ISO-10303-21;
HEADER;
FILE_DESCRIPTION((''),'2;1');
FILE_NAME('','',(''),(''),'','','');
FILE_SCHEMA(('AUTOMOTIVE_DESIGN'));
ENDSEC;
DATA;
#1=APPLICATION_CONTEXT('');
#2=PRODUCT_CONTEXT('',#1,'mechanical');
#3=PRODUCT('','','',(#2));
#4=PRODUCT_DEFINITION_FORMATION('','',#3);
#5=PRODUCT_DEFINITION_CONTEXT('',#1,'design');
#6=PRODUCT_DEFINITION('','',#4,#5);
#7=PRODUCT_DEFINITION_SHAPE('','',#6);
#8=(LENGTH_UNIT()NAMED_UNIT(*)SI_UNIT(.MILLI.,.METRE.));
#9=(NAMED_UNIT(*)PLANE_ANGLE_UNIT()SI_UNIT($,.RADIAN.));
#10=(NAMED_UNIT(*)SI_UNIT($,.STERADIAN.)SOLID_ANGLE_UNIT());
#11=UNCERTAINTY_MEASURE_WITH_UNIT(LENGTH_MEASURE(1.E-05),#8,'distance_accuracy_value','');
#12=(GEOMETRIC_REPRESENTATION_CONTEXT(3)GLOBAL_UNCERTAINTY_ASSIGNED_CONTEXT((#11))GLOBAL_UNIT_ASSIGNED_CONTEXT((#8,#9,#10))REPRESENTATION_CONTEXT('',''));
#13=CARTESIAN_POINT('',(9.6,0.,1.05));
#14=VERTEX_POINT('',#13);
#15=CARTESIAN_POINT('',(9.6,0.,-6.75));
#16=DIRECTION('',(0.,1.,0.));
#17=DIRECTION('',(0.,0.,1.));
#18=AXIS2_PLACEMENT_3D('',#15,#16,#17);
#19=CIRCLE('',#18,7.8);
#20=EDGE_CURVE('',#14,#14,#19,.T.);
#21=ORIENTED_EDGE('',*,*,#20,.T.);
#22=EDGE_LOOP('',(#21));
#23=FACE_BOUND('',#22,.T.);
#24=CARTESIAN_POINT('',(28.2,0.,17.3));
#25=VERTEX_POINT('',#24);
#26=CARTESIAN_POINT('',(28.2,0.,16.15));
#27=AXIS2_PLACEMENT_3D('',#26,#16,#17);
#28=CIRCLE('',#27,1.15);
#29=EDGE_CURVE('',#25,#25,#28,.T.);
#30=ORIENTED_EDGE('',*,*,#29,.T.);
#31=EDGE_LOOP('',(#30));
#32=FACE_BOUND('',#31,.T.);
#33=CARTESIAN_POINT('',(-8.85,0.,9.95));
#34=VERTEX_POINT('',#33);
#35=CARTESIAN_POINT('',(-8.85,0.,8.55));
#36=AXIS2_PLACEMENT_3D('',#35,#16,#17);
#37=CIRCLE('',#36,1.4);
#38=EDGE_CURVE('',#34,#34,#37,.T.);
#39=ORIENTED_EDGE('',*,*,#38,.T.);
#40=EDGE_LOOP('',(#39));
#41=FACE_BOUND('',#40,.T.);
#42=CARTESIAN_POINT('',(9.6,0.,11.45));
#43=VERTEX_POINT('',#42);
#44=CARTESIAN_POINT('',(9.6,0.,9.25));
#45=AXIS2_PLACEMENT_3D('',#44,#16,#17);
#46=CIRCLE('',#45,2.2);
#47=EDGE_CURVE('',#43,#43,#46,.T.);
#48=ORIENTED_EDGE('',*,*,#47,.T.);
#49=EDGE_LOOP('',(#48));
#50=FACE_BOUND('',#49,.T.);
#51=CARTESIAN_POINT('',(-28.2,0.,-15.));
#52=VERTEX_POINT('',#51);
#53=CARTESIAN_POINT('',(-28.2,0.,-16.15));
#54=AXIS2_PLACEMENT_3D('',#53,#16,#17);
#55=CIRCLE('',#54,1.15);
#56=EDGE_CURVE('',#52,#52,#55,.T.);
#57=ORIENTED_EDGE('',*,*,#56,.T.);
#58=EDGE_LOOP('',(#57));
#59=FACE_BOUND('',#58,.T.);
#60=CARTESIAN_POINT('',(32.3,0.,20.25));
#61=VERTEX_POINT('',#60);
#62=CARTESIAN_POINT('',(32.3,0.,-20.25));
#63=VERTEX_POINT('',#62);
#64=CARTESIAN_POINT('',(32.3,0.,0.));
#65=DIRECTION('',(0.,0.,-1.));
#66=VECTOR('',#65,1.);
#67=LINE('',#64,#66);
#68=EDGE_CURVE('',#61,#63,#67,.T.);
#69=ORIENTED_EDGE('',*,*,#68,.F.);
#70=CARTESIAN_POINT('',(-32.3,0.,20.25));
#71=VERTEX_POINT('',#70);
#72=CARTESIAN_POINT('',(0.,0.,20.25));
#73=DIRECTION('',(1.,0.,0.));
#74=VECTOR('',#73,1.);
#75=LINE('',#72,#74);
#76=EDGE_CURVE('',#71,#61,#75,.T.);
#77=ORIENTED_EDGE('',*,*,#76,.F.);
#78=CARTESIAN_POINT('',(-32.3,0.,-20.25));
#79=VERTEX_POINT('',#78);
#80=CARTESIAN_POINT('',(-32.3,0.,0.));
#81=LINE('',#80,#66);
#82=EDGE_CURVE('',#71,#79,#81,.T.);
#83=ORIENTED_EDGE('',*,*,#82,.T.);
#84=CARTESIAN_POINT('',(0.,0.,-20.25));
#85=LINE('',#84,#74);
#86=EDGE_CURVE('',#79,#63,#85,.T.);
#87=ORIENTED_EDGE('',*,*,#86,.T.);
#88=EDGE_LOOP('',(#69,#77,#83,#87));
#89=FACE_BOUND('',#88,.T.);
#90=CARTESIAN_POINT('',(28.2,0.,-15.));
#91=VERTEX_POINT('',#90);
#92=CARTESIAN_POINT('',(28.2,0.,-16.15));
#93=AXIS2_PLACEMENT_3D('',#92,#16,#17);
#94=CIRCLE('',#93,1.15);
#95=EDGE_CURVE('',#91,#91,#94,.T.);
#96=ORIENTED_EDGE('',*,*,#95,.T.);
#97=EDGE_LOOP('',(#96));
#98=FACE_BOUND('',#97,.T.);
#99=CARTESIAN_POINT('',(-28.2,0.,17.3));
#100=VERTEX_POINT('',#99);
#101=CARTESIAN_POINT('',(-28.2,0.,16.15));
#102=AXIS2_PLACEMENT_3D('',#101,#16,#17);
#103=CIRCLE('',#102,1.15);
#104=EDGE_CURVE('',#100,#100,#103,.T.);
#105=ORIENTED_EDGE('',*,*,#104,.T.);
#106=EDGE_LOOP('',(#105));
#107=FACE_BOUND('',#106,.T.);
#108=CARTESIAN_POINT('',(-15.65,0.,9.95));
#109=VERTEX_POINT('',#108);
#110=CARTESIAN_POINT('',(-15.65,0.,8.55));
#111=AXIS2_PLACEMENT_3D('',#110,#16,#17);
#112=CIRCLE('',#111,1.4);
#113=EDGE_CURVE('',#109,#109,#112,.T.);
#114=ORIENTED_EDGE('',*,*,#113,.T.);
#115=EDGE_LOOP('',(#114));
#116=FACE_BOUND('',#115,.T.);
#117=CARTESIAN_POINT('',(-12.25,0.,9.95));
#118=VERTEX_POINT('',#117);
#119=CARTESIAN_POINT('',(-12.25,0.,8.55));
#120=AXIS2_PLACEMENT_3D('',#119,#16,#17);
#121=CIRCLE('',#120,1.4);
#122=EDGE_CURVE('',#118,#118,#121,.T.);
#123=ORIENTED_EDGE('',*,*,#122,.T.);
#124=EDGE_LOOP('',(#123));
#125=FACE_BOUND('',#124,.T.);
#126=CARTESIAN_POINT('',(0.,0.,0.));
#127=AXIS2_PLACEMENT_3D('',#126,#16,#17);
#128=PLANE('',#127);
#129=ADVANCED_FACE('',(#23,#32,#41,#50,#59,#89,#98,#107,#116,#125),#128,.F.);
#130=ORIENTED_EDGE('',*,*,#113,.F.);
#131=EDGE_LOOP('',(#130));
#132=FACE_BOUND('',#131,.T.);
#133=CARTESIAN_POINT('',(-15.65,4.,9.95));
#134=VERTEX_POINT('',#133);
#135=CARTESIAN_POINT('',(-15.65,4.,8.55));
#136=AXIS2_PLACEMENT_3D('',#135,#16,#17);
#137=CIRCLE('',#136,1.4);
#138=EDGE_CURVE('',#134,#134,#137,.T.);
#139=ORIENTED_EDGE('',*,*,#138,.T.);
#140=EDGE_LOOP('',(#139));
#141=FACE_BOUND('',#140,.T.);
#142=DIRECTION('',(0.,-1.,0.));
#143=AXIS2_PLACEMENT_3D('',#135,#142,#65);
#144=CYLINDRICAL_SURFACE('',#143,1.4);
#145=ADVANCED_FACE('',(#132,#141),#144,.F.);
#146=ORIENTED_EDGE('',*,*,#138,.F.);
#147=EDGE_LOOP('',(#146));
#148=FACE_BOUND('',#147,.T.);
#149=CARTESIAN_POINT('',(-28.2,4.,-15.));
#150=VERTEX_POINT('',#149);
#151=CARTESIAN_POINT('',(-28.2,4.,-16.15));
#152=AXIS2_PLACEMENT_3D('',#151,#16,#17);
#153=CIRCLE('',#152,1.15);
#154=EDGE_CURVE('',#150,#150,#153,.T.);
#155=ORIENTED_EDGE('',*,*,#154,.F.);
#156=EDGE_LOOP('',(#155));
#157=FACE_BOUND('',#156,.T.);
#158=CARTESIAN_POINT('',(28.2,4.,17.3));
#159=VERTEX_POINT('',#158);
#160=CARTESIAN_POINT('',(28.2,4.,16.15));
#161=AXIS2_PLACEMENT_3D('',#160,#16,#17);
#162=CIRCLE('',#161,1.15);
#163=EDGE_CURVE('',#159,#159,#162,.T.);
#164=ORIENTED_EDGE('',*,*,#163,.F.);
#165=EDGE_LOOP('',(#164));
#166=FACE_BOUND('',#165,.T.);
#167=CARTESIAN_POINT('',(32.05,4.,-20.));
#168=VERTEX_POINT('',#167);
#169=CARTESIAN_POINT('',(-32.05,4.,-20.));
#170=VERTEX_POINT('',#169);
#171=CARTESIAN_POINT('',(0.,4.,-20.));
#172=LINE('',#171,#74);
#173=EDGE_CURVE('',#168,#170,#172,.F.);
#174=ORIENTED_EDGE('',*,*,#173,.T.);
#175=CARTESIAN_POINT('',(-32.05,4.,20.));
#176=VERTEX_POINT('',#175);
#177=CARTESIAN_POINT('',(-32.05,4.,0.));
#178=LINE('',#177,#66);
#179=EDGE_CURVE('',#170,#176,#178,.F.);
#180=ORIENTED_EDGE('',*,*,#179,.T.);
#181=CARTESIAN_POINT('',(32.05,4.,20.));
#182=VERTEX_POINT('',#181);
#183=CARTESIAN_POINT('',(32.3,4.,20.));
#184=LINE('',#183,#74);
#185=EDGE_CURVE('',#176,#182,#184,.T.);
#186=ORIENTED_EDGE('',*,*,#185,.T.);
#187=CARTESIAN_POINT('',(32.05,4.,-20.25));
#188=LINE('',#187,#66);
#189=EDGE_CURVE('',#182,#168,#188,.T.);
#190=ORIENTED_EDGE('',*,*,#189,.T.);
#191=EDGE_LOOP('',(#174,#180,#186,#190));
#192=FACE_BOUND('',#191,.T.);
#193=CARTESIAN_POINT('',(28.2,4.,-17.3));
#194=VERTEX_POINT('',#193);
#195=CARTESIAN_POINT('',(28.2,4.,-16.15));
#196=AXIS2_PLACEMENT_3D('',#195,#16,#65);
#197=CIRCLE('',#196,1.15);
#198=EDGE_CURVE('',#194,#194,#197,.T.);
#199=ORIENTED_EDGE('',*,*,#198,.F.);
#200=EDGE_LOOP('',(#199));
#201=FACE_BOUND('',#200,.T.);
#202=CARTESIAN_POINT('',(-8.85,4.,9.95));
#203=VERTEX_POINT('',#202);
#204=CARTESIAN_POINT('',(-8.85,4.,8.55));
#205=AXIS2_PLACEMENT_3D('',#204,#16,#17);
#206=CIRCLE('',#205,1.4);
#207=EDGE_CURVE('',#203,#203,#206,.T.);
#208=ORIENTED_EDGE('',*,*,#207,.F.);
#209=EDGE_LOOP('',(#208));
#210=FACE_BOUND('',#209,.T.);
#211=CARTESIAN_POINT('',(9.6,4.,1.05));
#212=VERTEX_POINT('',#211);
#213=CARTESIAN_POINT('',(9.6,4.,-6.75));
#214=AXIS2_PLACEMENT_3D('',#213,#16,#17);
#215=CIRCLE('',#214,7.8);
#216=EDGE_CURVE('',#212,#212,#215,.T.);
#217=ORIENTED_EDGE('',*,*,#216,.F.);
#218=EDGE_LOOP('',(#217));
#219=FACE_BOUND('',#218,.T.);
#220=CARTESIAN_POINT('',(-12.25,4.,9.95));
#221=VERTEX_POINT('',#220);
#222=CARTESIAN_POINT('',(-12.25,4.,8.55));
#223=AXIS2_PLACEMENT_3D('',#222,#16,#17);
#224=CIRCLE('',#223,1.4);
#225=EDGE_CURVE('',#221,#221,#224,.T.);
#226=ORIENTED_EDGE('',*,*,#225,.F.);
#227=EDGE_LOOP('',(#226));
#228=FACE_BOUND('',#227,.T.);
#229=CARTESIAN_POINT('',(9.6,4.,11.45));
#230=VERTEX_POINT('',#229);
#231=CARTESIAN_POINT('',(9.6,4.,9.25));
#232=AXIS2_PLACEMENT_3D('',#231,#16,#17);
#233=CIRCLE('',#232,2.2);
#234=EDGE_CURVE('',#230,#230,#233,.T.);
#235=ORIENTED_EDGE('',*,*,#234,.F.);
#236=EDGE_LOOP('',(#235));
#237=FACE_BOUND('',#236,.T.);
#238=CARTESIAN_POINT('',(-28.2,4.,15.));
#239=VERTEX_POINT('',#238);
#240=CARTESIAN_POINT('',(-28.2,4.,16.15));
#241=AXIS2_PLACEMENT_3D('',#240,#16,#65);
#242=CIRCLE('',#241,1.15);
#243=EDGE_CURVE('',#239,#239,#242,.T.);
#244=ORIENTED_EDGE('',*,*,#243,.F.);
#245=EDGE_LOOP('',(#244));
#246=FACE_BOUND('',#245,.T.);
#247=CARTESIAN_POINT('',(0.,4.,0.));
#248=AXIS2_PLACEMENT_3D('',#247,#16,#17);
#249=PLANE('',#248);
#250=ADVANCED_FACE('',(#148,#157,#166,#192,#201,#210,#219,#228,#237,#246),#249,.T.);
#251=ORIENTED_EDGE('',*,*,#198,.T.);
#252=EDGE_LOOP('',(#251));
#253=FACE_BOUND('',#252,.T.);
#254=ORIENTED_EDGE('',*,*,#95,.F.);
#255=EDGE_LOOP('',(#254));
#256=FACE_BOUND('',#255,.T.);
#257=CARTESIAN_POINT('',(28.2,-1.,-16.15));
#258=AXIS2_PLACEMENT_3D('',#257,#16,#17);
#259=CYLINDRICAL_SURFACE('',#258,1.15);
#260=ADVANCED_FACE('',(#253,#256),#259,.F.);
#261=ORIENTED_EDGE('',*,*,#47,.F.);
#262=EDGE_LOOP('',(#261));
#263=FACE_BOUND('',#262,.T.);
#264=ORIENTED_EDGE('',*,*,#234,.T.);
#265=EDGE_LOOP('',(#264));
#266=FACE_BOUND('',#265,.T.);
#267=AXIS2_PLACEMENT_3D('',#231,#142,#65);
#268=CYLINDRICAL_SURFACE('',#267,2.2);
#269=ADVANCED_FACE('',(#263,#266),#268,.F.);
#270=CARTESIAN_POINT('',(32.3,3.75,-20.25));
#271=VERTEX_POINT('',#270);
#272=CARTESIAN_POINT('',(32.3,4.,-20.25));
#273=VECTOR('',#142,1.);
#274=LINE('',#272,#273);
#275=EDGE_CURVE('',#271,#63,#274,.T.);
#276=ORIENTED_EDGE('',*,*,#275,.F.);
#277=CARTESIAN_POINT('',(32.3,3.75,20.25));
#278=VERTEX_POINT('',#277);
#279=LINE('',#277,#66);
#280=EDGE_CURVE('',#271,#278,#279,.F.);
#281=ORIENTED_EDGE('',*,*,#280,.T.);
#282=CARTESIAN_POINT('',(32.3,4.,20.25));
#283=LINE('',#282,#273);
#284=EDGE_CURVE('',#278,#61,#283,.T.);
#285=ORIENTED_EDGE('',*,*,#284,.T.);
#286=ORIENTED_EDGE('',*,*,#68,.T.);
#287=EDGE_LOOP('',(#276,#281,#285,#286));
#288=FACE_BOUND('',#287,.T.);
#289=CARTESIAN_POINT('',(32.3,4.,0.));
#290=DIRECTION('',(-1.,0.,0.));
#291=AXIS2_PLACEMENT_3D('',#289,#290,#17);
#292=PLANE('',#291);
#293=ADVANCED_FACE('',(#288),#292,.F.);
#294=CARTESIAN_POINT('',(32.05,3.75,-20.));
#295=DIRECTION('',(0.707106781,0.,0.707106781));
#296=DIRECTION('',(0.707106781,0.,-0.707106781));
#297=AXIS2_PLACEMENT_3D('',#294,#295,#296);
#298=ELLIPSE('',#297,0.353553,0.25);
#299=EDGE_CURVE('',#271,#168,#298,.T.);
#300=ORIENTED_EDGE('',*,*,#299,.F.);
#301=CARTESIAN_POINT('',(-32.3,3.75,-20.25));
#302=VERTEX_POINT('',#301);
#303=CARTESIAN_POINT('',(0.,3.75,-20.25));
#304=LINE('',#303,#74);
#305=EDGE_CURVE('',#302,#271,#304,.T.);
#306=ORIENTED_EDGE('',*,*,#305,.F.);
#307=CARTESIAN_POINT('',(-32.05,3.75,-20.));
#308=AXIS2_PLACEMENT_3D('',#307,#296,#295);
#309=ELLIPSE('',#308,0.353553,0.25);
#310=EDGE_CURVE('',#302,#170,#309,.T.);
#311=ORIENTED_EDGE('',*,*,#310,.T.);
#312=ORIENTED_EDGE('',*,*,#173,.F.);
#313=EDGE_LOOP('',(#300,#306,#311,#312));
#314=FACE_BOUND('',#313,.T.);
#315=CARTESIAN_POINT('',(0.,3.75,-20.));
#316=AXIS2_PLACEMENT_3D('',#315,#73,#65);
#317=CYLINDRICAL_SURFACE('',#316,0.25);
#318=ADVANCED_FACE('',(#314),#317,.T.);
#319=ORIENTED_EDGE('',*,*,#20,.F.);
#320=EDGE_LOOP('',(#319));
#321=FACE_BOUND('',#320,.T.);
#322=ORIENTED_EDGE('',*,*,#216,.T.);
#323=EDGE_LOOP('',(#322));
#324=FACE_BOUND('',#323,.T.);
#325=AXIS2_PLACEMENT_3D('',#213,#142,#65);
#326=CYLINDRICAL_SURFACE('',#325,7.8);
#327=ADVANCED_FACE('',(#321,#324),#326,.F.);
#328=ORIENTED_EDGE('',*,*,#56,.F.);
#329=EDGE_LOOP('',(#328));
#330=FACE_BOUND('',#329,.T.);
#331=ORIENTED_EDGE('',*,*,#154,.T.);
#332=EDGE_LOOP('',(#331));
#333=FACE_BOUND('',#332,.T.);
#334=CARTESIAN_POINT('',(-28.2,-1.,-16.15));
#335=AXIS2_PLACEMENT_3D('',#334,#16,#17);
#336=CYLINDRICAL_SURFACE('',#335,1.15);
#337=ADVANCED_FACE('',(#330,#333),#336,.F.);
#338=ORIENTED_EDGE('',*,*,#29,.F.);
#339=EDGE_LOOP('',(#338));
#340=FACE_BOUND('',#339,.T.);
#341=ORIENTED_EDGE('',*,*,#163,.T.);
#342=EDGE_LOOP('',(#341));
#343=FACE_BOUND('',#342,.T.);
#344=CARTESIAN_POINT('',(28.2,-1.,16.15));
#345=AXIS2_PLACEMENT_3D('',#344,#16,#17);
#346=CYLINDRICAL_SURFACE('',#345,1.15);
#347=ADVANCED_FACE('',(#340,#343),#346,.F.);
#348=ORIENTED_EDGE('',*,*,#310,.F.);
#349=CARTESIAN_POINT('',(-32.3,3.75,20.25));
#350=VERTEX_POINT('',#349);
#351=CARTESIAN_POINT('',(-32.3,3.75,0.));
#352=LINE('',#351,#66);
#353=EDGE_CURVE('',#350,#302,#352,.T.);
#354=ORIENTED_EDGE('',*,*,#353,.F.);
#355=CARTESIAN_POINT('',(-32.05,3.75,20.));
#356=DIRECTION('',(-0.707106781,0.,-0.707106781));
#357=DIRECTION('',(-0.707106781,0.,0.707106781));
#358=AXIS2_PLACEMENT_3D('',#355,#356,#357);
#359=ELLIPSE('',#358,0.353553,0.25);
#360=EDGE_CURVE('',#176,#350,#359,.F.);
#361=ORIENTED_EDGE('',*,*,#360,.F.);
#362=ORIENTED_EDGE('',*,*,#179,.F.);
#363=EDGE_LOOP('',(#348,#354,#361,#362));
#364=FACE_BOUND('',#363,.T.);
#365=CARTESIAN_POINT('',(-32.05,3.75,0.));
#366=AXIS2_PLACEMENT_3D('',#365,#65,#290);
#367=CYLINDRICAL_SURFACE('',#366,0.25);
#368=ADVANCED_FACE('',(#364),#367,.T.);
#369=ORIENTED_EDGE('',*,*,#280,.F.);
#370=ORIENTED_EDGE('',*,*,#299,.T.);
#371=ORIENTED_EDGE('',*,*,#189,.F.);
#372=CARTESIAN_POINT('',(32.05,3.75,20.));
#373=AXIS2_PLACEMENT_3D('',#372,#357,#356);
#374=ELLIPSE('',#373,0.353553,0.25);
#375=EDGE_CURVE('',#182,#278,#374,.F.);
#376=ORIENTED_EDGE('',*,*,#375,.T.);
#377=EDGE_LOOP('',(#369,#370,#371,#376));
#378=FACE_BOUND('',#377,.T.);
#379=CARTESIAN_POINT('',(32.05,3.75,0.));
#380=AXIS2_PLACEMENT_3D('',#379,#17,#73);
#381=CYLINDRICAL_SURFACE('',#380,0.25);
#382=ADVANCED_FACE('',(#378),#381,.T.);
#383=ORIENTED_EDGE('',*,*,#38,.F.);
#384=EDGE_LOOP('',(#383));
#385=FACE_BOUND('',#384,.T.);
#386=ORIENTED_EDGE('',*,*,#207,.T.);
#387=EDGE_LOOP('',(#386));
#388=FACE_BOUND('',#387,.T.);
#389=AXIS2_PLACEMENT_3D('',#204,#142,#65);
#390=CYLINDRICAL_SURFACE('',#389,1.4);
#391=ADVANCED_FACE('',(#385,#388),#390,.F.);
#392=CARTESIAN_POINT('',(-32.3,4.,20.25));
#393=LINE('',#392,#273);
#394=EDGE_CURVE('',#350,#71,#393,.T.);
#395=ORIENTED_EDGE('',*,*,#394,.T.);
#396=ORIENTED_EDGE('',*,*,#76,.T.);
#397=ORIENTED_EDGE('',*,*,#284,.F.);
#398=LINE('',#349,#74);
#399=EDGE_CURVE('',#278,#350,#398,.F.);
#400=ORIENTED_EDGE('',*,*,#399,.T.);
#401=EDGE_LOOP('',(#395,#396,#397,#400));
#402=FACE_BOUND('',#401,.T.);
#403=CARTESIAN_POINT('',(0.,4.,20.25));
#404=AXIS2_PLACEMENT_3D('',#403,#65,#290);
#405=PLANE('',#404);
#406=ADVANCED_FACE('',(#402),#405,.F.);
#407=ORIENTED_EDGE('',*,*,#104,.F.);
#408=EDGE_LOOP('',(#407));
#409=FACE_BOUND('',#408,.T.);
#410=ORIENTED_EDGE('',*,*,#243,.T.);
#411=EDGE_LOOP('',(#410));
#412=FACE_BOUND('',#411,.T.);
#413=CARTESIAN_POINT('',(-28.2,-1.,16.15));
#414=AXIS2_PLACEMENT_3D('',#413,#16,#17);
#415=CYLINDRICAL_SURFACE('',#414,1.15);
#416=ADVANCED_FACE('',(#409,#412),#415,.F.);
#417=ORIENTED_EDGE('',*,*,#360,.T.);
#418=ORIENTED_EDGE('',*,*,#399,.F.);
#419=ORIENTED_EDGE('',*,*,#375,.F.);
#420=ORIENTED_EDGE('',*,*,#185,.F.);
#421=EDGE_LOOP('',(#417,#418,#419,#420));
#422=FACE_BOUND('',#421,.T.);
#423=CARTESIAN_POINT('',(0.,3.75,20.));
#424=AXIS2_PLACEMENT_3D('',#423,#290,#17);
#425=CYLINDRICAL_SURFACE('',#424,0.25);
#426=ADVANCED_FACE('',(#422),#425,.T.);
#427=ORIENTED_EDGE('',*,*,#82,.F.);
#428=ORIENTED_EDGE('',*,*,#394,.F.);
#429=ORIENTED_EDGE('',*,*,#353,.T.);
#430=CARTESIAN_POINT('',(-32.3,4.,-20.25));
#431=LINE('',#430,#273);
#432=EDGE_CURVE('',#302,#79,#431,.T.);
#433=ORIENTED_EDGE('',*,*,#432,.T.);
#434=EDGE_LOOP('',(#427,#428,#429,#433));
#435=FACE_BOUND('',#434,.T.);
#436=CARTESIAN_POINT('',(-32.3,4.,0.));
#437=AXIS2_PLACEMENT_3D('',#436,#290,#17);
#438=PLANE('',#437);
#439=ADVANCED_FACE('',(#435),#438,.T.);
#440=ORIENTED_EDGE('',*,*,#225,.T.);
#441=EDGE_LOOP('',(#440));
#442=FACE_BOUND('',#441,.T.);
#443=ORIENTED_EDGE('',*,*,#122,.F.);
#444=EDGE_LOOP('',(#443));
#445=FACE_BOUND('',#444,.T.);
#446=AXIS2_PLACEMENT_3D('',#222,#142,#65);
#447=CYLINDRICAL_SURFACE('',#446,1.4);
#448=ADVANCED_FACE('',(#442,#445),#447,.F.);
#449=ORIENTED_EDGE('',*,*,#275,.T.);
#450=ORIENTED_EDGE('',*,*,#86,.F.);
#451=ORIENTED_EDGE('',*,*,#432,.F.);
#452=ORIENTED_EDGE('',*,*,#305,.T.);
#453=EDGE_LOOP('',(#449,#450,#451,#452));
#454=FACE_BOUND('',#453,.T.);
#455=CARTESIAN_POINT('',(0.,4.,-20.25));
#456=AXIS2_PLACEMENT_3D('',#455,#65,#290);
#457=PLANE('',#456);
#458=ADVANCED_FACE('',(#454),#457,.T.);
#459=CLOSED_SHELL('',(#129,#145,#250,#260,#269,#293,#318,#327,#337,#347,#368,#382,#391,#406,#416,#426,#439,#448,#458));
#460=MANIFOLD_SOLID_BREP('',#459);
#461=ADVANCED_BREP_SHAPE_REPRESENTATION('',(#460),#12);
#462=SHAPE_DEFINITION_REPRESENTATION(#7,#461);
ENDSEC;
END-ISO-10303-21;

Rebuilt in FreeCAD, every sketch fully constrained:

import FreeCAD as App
import Part
import Sketcher

V = App.Vector
Q = App.Units.Quantity


def edges_at(feature, points):
    """Names of the edges that pass closest to the given points."""
    edges = feature.Shape.Edges
    near = lambda p: min(range(len(edges)), key=lambda i: edges[i].distToShape(Part.Vertex(*p))[0])
    return sorted({f"Edge{near(p) + 1}" for p in points})


def add_polygon(sketch, points):
    """Adds a closed chain of lines whose ends are joined by coincident constraints."""
    first, n = sketch.GeometryCount, len(points)
    for a, b in zip(points, points[1:] + points[:1]):
        sketch.addGeometry(Part.LineSegment(App.Vector(*a, 0), App.Vector(*b, 0)), False)
    for i in range(n):
        sketch.addConstraint(Sketcher.Constraint("Coincident", first + i, 2, first + (i + 1) % n, 1))

doc = App.newDocument("Part")
body = doc.addObject("PartDesign::Body", "Body")

# Sketch on XZ plane
sketch1 = body.newObject("Sketcher::SketchObject", "Sketch")
sketch1.AttachmentSupport = (doc.getObject("XZ_Plane"), [""])
sketch1.MapMode = "FlatFace"
add_polygon(sketch1, [(-32.3, -20.25), (-32.3, 20.25), (32.3, 20.25), (32.3, -20.25)])  # lines 0-3
sketch1.addGeometry(Part.Circle(V(-15.65, 8.55, 0), V(0, 0, 1), 1.4), False)  # 4
sketch1.addGeometry(Part.Circle(V(-12.25, 8.55, 0), V(0, 0, 1), 1.4), False)  # 5
sketch1.addGeometry(Part.Circle(V(-8.85, 8.55, 0), V(0, 0, 1), 1.4), False)  # 6
sketch1.addGeometry(Part.Circle(V(9.6, 9.25, 0), V(0, 0, 1), 2.2), False)  # 7
sketch1.addGeometry(Part.Circle(V(9.6, -6.75, 0), V(0, 0, 1), 7.8), False)  # 8
sketch1.addConstraint(Sketcher.Constraint("Vertical", 0))
sketch1.addConstraint(Sketcher.Constraint("Horizontal", 1))
sketch1.addConstraint(Sketcher.Constraint("Vertical", 2))
sketch1.addConstraint(Sketcher.Constraint("Horizontal", 3))
sketch1.addConstraint(Sketcher.Constraint("Equal", 4, 5))
sketch1.addConstraint(Sketcher.Constraint("Equal", 5, 6))
sketch1.addConstraint(Sketcher.Constraint("Symmetric", 0, 2, 2, 2, -1, 1))
sketch1.addConstraint(Sketcher.Constraint("Horizontal", 4, 3, 5, 3))
sketch1.addConstraint(Sketcher.Constraint("Horizontal", 5, 3, 6, 3))
sketch1.addConstraint(Sketcher.Constraint("Vertical", 7, 3, 8, 3))
sketch1.addConstraint(Sketcher.Constraint("Diameter", 4, Q("2.8 mm")))
sketch1.addConstraint(Sketcher.Constraint("Diameter", 7, Q("4.4 mm")))
sketch1.addConstraint(Sketcher.Constraint("Diameter", 8, Q("15.6 mm")))
sketch1.addConstraint(Sketcher.Constraint("DistanceX", 1, 1, 1, 2, Q("64.6 mm")))
sketch1.addConstraint(Sketcher.Constraint("DistanceY", 0, 1, 0, 2, Q("40.5 mm")))
sketch1.addConstraint(Sketcher.Constraint("DistanceY", 8, 3, 7, 3, Q("16 mm")))
sketch1.addConstraint(Sketcher.Constraint("DistanceY", 7, 3, 0, 2, Q("11 mm")))
sketch1.addConstraint(Sketcher.Constraint("DistanceX", -1, 1, 7, 3, Q("9.6 mm")))
sketch1.addConstraint(Sketcher.Constraint("DistanceX", 4, 3, 5, 3, Q("3.4 mm")))
sketch1.addConstraint(Sketcher.Constraint("DistanceX", 5, 3, 6, 3, Q("3.4 mm")))
sketch1.addConstraint(Sketcher.Constraint("DistanceY", 6, 3, 7, 3, Q("0.7 mm")))
sketch1.addConstraint(Sketcher.Constraint("DistanceX", 4, 3, -1, 1, Q("15.65 mm")))
pad1 = body.newObject("PartDesign::Pad", "Pad")
pad1.Profile = sketch1
pad1.Length = 4
pad1.Reversed = True

# Sketch on XZ plane
sketch2 = body.newObject("Sketcher::SketchObject", "Sketch001")
sketch2.AttachmentSupport = (doc.getObject("XZ_Plane"), [""])
sketch2.MapMode = "FlatFace"
sketch2.AttachmentOffset = App.Placement(V(0, 0, -4), App.Rotation())
sketch2.addGeometry(Part.Circle(V(-28.2, -16.15, 0), V(0, 0, 1), 1.15), False)
sketch2.addGeometry(Part.Circle(V(28.2, -16.15, 0), V(0, 0, 1), 1.15), False)
sketch2.addGeometry(Part.Circle(V(28.2, 16.15, 0), V(0, 0, 1), 1.15), False)
sketch2.addGeometry(Part.Circle(V(-28.2, 16.15, 0), V(0, 0, 1), 1.15), False)
sketch2.addConstraint(Sketcher.Constraint("Equal", 0, 1))
sketch2.addConstraint(Sketcher.Constraint("Equal", 1, 2))
sketch2.addConstraint(Sketcher.Constraint("Equal", 2, 3))
sketch2.addConstraint(Sketcher.Constraint("Symmetric", 0, 3, 2, 3, -1, 1))
sketch2.addConstraint(Sketcher.Constraint("Symmetric", 1, 3, 3, 3, -1, 1))
sketch2.addConstraint(Sketcher.Constraint("Symmetric", 0, 3, 1, 3, -2))
sketch2.addConstraint(Sketcher.Constraint("Diameter", 0, Q("2.3 mm")))
sketch2.addConstraint(Sketcher.Constraint("DistanceX", 0, 3, -1, 1, Q("28.2 mm")))
sketch2.addConstraint(Sketcher.Constraint("DistanceY", 1, 3, 2, 3, Q("32.3 mm")))
pocket1 = body.newObject("PartDesign::Pocket", "Pocket")
pocket1.Profile = sketch2
pocket1.Length = 5
pocket1.Reversed = True
doc.recompute()

fillet = body.newObject("PartDesign::Fillet", "Fillet")
fillet.Base = (pocket1, edges_at(pocket1, [
    (0, 4, 20.25),
    (32.3, 4, 0),
    (0, 4, -20.25),
    (-32.3, 4, 0),
]))
fillet.Radius = 0.25

doc.recompute()
